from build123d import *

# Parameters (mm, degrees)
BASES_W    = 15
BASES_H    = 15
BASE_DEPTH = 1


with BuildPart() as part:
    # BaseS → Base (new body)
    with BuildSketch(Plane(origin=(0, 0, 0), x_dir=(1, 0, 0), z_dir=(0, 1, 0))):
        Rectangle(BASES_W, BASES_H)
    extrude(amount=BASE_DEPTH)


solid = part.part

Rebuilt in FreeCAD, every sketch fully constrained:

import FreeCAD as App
import Part
import Sketcher

V = App.Vector


def add_polygon(sketch, points):
    """Adds a closed chain of lines whose ends are joined by coincident constraints."""
    first, n = sketch.GeometryCount, len(points)
    for a, b in zip(points, points[1:] + points[:1]):
        sketch.addGeometry(Part.LineSegment(App.Vector(*a, 0), App.Vector(*b, 0)), False)
    for i in range(n):
        sketch.addConstraint(Sketcher.Constraint("Coincident", first + i, 2, first + (i + 1) % n, 1))

doc = App.newDocument("Part")
body = doc.addObject("PartDesign::Body", "Body")

# Sketch on XZ plane
sketch1 = body.newObject("Sketcher::SketchObject", "Sketch")
sketch1.AttachmentSupport = (doc.getObject("XZ_Plane"), [""])
sketch1.MapMode = "FlatFace"
add_polygon(sketch1, [(-8, -8), (-8, 8), (8, 8), (8, -8)])  # lines 0-3
sketch1.addConstraint([
    Sketcher.Constraint("Vertical", 0),
    Sketcher.Constraint("Horizontal", 1),
    Sketcher.Constraint("Vertical", 2),
    Sketcher.Constraint("Horizontal", 3),
    Sketcher.Constraint("Symmetric", 0, 2, 2, 2, -1, 1),
    Sketcher.Constraint("Equal", 3, 0),
    Sketcher.Constraint("DistanceX", 1, 1, 1, 2, 15.0),
])
pad1 = body.newObject("PartDesign::Pad", "Pad")
pad1.Profile = sketch1
pad1.Length = 1
pad1.Reversed = True

doc.recompute()
